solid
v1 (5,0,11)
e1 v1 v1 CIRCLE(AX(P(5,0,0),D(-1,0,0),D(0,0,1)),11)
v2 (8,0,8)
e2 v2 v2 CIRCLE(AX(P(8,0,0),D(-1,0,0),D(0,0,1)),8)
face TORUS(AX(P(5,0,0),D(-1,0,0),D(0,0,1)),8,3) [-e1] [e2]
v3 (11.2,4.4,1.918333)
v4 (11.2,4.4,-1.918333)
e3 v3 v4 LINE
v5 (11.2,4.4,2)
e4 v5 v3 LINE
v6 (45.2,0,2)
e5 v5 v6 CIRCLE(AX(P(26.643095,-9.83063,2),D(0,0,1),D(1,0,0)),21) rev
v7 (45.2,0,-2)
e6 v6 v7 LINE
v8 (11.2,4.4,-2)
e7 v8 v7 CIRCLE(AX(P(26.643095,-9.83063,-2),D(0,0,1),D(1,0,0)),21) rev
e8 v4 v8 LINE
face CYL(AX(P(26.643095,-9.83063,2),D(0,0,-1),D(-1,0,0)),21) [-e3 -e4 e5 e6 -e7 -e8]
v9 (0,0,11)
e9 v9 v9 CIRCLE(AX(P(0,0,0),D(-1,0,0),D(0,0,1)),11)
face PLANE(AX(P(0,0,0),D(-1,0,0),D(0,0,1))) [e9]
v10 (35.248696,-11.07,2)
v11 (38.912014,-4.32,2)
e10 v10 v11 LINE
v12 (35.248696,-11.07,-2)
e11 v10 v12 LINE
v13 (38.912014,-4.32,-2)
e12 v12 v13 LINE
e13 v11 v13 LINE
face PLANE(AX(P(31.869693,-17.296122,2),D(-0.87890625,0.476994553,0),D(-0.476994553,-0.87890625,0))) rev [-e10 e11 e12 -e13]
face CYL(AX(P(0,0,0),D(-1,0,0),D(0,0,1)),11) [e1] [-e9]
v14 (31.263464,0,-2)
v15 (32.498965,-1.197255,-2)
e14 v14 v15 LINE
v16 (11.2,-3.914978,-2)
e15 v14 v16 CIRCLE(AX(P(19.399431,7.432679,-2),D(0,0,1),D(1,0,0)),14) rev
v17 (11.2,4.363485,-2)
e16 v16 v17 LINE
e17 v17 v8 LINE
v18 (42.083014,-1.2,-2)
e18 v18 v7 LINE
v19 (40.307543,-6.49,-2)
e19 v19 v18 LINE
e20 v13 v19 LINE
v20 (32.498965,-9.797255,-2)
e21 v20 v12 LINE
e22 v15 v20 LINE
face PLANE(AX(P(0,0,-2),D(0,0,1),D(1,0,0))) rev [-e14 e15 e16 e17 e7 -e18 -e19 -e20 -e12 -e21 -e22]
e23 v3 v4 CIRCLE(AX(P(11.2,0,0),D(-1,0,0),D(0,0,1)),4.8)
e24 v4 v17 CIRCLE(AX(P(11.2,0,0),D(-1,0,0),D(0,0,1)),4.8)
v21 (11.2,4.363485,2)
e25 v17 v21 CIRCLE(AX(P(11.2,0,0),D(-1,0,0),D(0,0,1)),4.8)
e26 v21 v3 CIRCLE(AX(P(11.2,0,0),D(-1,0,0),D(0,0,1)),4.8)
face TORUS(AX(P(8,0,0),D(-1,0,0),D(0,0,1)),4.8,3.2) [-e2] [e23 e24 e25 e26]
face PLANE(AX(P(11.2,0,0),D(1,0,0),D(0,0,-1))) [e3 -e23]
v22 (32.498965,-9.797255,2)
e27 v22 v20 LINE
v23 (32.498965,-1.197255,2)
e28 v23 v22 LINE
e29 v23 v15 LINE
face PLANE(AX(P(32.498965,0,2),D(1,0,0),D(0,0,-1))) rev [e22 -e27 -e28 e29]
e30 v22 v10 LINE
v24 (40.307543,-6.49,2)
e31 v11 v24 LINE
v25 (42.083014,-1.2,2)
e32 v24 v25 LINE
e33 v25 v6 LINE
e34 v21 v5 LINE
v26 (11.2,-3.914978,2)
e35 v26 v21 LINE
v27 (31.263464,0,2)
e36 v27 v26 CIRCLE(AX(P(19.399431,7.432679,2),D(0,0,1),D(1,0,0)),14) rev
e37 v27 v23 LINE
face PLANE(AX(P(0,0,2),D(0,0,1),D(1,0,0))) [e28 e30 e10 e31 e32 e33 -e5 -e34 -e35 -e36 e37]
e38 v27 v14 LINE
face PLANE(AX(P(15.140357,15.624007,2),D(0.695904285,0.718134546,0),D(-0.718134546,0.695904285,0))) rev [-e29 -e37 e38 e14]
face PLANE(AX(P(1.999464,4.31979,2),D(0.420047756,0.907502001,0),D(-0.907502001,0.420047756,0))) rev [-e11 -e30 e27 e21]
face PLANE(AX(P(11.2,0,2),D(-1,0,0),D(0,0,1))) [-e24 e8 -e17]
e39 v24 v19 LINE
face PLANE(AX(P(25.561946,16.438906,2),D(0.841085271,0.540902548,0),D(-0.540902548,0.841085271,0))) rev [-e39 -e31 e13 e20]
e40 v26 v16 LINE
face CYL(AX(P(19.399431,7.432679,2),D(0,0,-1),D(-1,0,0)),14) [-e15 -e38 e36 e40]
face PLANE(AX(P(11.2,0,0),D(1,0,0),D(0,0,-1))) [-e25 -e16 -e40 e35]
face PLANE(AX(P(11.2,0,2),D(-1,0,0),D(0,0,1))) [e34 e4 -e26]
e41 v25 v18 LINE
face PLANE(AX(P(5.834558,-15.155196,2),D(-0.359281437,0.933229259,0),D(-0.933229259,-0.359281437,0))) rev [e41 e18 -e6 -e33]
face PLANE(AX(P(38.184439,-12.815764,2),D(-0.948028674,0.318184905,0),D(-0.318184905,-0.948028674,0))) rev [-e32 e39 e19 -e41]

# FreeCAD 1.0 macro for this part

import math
import FreeCAD as App
import Part
import Sketcher

V = App.Vector
Q = App.Units.Quantity

doc = App.newDocument("Part")
body = doc.addObject("PartDesign::Body", "Body")

sketch1 = body.newObject("Sketcher::SketchObject", "Sketch")
sketch1.AttachmentSupport = (doc.getObject("XY_Plane"), [""])
sketch1.MapMode = "FlatFace"
sketch1.addGeometry(Part.ArcOfCircle(Part.Circle(V(8, 4.8, 0), V(0, 0, 1), 3.2), math.radians(0), math.radians(90)), False)
sketch1.addGeometry(Part.ArcOfCircle(Part.Circle(V(5, 8, 0), V(0, 0, 1), 3), math.radians(0), math.radians(90)), False)
sketch1.addGeometry(Part.LineSegment(V(5, 11, 0), V(0, 11, 0)), False)
sketch1.addGeometry(Part.LineSegment(V(0, 11, 0), V(0, 0, 0)), False)
sketch1.addGeometry(Part.LineSegment(V(0, 0, 0), V(11.2, 0, 0)), False)
sketch1.addGeometry(Part.LineSegment(V(11.2, 0, 0), V(11.2, 4.8, 0)), False)
sketch1.addConstraint(Sketcher.Constraint("Coincident", 0, 2, 1, 1))
sketch1.addConstraint(Sketcher.Constraint("Tangent", 1, 2, 2, 1))
sketch1.addConstraint(Sketcher.Constraint("Coincident", 2, 2, 3, 1))
sketch1.addConstraint(Sketcher.Constraint("Coincident", 3, 2, 4, 1))
sketch1.addConstraint(Sketcher.Constraint("Coincident", 4, 2, 5, 1))
sketch1.addConstraint(Sketcher.Constraint("Tangent", 5, 2, 0, 1))
sketch1.addConstraint(Sketcher.Constraint("Horizontal", 2))
sketch1.addConstraint(Sketcher.Constraint("Vertical", 3))
sketch1.addConstraint(Sketcher.Constraint("Horizontal", 4))
sketch1.addConstraint(Sketcher.Constraint("Vertical", 5))
sketch1.addConstraint(Sketcher.Constraint("Coincident", 3, 2, -1, 1))
sketch1.addConstraint(Sketcher.Constraint("Horizontal", 1, 3, 0, 2))
sketch1.addConstraint(Sketcher.Constraint("Radius", 1, Q("3 mm")))
sketch1.addConstraint(Sketcher.Constraint("Radius", 0, Q("3.2 mm")))
sketch1.addConstraint(Sketcher.Constraint("DistanceX", 2, 2, 2, 1, Q("5 mm")))
sketch1.addConstraint(Sketcher.Constraint("DistanceY", 3, 2, 3, 1, Q("11 mm")))
sketch1.addConstraint(Sketcher.Constraint("DistanceX", 4, 1, 4, 2, Q("11.2 mm")))
revolution = body.newObject("PartDesign::Revolution", "Revolution")
revolution.Profile = sketch1
revolution.ReferenceAxis = (sketch1, ["H_Axis"])
revolution.Angle = 360

sketch2 = body.newObject("Sketcher::SketchObject", "Sketch001")
sketch2.AttachmentSupport = (doc.getObject("XY_Plane"), [""])
sketch2.MapMode = "FlatFace"
sketch2.addGeometry(Part.ArcOfCircle(Part.Circle(V(26.6, -9.8, 0), V(0, 0, 1), 21), math.radians(28), math.radians(137)), False)
sketch2.addGeometry(Part.LineSegment(V(11.2, 4.4, 0), V(11.2, -3.9, 0)), False)
sketch2.addGeometry(Part.ArcOfCircle(Part.Circle(V(19.4, 7.4, 0), V(0, 0, 1), 14), math.radians(-126), math.radians(-32)), False)
sketch2.addGeometry(Part.LineSegment(V(31.3, 0, 0), V(32.5, -1.2, 0)), False)
sketch2.addGeometry(Part.LineSegment(V(32.5, -1.2, 0), V(32.5, -9.8, 0)), False)
sketch2.addGeometry(Part.LineSegment(V(32.5, -9.8, 0), V(35.2, -11.1, 0)), False)
sketch2.addGeometry(Part.LineSegment(V(35.2, -11.1, 0), V(38.9, -4.3, 0)), False)
sketch2.addGeometry(Part.LineSegment(V(38.9, -4.3, 0), V(40.3, -6.5, 0)), False)
sketch2.addGeometry(Part.LineSegment(V(40.3, -6.5, 0), V(42.1, -1.2, 0)), False)
sketch2.addGeometry(Part.LineSegment(V(42.1, -1.2, 0), V(45.2, 0, 0)), False)
sketch2.addConstraint(Sketcher.Constraint("Coincident", 0, 2, 1, 1))
sketch2.addConstraint(Sketcher.Constraint("Coincident", 1, 2, 2, 1))
sketch2.addConstraint(Sketcher.Constraint("Coincident", 2, 2, 3, 1))
sketch2.addConstraint(Sketcher.Constraint("Coincident", 3, 2, 4, 1))
sketch2.addConstraint(Sketcher.Constraint("Coincident", 4, 2, 5, 1))
sketch2.addConstraint(Sketcher.Constraint("Coincident", 5, 2, 6, 1))
sketch2.addConstraint(Sketcher.Constraint("Coincident", 6, 2, 7, 1))
sketch2.addConstraint(Sketcher.Constraint("Coincident", 7, 2, 8, 1))
sketch2.addConstraint(Sketcher.Constraint("Coincident", 8, 2, 9, 1))
sketch2.addConstraint(Sketcher.Constraint("Coincident", 9, 2, 0, 1))
sketch2.addConstraint(Sketcher.Constraint("Vertical", 1))
sketch2.addConstraint(Sketcher.Constraint("Vertical", 4))
sketch2.addConstraint(Sketcher.Constraint("PointOnObject", 2, 2, -1))
sketch2.addConstraint(Sketcher.Constraint("PointOnObject", 9, 2, -1))
sketch2.addConstraint(Sketcher.Constraint("Radius", 0, Q("21 mm")))
sketch2.addConstraint(Sketcher.Constraint("Radius", 2, Q("14 mm")))
sketch2.addConstraint(Sketcher.Constraint("DistanceY", 4, 2, 4, 1, Q("8.6 mm")))
sketch2.addConstraint(Sketcher.Constraint("DistanceX", -1, 1, 0, 2, Q("11.2 mm")))
sketch2.addConstraint(Sketcher.Constraint("DistanceY", -1, 1, 0, 2, Q("4.4 mm")))
sketch2.addConstraint(Sketcher.Constraint("DistanceY", 8, 2, -1, 1, Q("1.2 mm")))
sketch2.addConstraint(Sketcher.Constraint("DistanceX", -1, 1, 9, 2, Q("45.2 mm")))
sketch2.addConstraint(Sketcher.Constraint("Distance", 5, Q("3.03 mm")))
sketch2.addConstraint(Sketcher.Constraint("Distance", 6, Q("7.68 mm")))
sketch2.addConstraint(Sketcher.Constraint("Distance", 7, Q("2.58 mm")))
sketch2.addConstraint(Sketcher.Constraint("Distance", 8, Q("5.58 mm")))
sketch2.addConstraint(Sketcher.Constraint("Distance", 9, Q("3.34 mm")))
sketch2.addConstraint(Sketcher.Constraint("DistanceY", 5, 2, -1, 1, Q("11.07 mm")))
sketch2.addConstraint(Sketcher.Constraint("DistanceY", 6, 2, -1, 1, Q("4.32 mm")))
sketch2.addConstraint(Sketcher.Constraint("DistanceY", 7, 2, -1, 1, Q("6.49 mm")))
sketch2.addConstraint(Sketcher.Constraint("DistanceY", 1, 2, 1, 1, Q("8.314978 mm")))
sketch2.addConstraint(Sketcher.Constraint("DistanceX", 2, 2, 3, 2, Q("1.235501 mm")))
sketch2.addConstraint(Sketcher.Constraint("Distance", 3, Q("1.720431 mm")))
pad1 = body.newObject("PartDesign::Pad", "Pad")
pad1.Profile = sketch2
pad1.Length = 4
pad1.Midplane = True

sketch3 = body.newObject("Sketcher::SketchObject", "Sketch002")
sketch3.AttachmentSupport = (doc.getObject("XY_Plane"), [""])
sketch3.MapMode = "FlatFace"
sketch3.addGeometry(Part.ArcOfCircle(Part.Circle(V(5, 8, 0), V(0, 0, 1), 3), math.radians(0), math.radians(90)), False)
sketch3.addGeometry(Part.LineSegment(V(5, 11, 0), V(5, 0, 0)), False)
sketch3.addGeometry(Part.LineSegment(V(5, 0, 0), V(8, 0, 0)), False)
sketch3.addGeometry(Part.LineSegment(V(8, 0, 0), V(8, 8, 0)), False)
sketch3.addConstraint(Sketcher.Constraint("Coincident", 0, 2, 1, 1))
sketch3.addConstraint(Sketcher.Constraint("Coincident", 1, 2, 2, 1))
sketch3.addConstraint(Sketcher.Constraint("Coincident", 2, 2, 3, 1))
sketch3.addConstraint(Sketcher.Constraint("Tangent", 3, 2, 0, 1))
sketch3.addConstraint(Sketcher.Constraint("Vertical", 1))
sketch3.addConstraint(Sketcher.Constraint("Horizontal", 2))
sketch3.addConstraint(Sketcher.Constraint("Vertical", 3))
sketch3.addConstraint(Sketcher.Constraint("PointOnObject", 1, 2, -1))
sketch3.addConstraint(Sketcher.Constraint("Radius", 0, Q("3 mm")))
sketch3.addConstraint(Sketcher.Constraint("DistanceX", 2, 1, 2, 2, Q("3 mm")))
sketch3.addConstraint(Sketcher.Constraint("DistanceY", 1, 2, 1, 1, Q("11 mm")))
sketch3.addConstraint(Sketcher.Constraint("DistanceX", -1, 1, 0, 3, Q("5 mm")))
revolution2 = body.newObject("PartDesign::Revolution", "Revolution001")
revolution2.Profile = sketch3
revolution2.ReferenceAxis = (sketch3, ["H_Axis"])
revolution2.Angle = 360

doc.recompute()
